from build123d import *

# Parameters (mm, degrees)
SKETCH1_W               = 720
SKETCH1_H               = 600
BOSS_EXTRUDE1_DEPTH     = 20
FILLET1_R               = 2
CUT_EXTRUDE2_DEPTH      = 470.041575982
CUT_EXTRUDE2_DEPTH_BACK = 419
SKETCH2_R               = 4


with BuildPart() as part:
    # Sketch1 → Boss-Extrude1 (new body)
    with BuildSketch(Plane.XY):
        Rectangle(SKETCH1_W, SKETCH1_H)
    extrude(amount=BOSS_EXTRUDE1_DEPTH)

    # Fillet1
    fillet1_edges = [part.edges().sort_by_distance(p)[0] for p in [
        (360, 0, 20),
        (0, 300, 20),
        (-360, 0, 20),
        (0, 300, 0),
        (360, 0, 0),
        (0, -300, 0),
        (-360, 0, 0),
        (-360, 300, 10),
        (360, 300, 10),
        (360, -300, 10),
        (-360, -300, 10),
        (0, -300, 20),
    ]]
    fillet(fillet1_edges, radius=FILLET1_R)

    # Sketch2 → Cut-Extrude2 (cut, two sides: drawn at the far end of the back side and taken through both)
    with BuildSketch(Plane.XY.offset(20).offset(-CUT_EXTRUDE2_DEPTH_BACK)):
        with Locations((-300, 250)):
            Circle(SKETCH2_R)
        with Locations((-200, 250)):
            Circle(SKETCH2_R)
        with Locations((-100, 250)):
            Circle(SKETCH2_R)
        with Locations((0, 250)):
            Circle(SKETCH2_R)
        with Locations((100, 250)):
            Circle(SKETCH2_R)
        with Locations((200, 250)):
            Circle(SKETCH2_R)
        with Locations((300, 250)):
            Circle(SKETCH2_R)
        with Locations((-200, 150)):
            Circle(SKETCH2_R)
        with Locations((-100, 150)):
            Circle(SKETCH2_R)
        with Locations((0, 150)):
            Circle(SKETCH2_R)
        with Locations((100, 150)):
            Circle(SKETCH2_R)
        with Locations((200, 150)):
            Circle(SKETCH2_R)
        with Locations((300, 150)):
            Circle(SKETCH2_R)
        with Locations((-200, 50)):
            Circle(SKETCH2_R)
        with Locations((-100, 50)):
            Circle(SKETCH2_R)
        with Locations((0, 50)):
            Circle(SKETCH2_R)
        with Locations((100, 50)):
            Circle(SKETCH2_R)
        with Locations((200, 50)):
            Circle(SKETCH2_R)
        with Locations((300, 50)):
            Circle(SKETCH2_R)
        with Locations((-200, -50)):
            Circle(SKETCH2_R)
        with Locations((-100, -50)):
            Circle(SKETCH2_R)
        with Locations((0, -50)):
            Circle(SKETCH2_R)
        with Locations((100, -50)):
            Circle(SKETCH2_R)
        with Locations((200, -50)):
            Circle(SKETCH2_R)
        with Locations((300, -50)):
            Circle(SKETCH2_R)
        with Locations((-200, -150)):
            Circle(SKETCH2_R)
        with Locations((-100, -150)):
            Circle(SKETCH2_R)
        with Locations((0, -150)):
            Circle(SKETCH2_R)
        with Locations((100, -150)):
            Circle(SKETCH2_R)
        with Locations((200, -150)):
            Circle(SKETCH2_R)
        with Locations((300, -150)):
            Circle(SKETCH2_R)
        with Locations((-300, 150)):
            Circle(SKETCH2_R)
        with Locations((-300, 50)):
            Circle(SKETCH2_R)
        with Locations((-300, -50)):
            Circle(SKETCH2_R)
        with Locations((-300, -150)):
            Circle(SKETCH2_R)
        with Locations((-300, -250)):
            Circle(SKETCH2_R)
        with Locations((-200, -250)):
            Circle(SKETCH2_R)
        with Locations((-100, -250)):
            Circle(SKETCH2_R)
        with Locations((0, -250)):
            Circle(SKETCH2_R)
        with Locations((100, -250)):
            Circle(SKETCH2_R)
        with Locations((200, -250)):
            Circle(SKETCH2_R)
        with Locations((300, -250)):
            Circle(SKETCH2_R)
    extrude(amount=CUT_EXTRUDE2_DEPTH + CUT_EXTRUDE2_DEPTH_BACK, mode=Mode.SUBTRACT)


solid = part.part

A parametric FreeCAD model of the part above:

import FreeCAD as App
import Part
import Sketcher
Q = App.Units.Quantity


def add_polygon(sketch, points):
    """Adds a closed chain of lines whose ends are joined by coincident constraints."""
    first, n = sketch.GeometryCount, len(points)
    for a, b in zip(points, points[1:] + points[:1]):
        sketch.addGeometry(Part.LineSegment(App.Vector(*a, 0), App.Vector(*b, 0)), False)
    for i in range(n):
        sketch.addConstraint(Sketcher.Constraint("Coincident", first + i, 2, first + (i + 1) % n, 1))

doc = App.newDocument("Part")
body = doc.addObject("PartDesign::Body", "Body")

# Sketch on XY plane
sketch1 = body.newObject("Sketcher::SketchObject", "Sketch")
sketch1.AttachmentSupport = (doc.getObject("XY_Plane"), [""])
sketch1.MapMode = "FlatFace"
add_polygon(sketch1, [(-360, 300), (-360, -300), (360, -300), (360, 300)])  # lines 0-3
sketch1.addConstraint([
    Sketcher.Constraint("Vertical", 0),
    Sketcher.Constraint("Horizontal", 1),
    Sketcher.Constraint("Vertical", 2),
    Sketcher.Constraint("Horizontal", 3),
    Sketcher.Constraint("Symmetric", 0, 2, 2, 2, -1, 1),
    Sketcher.Constraint("DistanceX", 1, 1, 1, 2, Q("720 mm")),
    Sketcher.Constraint("DistanceY", 0, 2, 0, 1, Q("600 mm")),
])
pad1 = body.newObject("PartDesign::Pad", "Pad")
pad1.Profile = sketch1
pad1.Length = 20
doc.recompute()

fillet = body.newObject("PartDesign::Fillet", "Fillet")
fillet.Base = (pad1, ["Edge1"])
fillet.UseAllEdges = True
fillet.Radius = 2

# Sketch on XY plane
sketch2 = body.newObject("Sketcher::SketchObject", "Sketch001")
sketch2.AttachmentSupport = (doc.getObject("XY_Plane"), [""])
sketch2.MapMode = "FlatFace"
sketch2.AttachmentOffset = App.Placement(App.Vector(0, 0, 20), App.Rotation())
sketch2.addGeometry([
    Part.Circle(App.Vector(-300, 250, 0), App.Vector(0, 0, 1), 4),  # 0
    Part.Circle(App.Vector(-200, 250, 0), App.Vector(0, 0, 1), 4),  # 1
    Part.Circle(App.Vector(-100, 250, 0), App.Vector(0, 0, 1), 4),  # 2
    Part.Circle(App.Vector(0, 250, 0), App.Vector(0, 0, 1), 4),  # 3
    Part.Circle(App.Vector(100, 250, 0), App.Vector(0, 0, 1), 4),  # 4
    Part.Circle(App.Vector(200, 250, 0), App.Vector(0, 0, 1), 4),  # 5
    Part.Circle(App.Vector(300, 250, 0), App.Vector(0, 0, 1), 4),  # 6
    Part.Circle(App.Vector(-200, 150, 0), App.Vector(0, 0, 1), 4),  # 7
    Part.Circle(App.Vector(-100, 150, 0), App.Vector(0, 0, 1), 4),  # 8
    Part.Circle(App.Vector(0, 150, 0), App.Vector(0, 0, 1), 4),  # 9
    Part.Circle(App.Vector(100, 150, 0), App.Vector(0, 0, 1), 4),  # 10
    Part.Circle(App.Vector(200, 150, 0), App.Vector(0, 0, 1), 4),  # 11
    Part.Circle(App.Vector(300, 150, 0), App.Vector(0, 0, 1), 4),  # 12
    Part.Circle(App.Vector(-200, 50, 0), App.Vector(0, 0, 1), 4),  # 13
    Part.Circle(App.Vector(-100, 50, 0), App.Vector(0, 0, 1), 4),  # 14
    Part.Circle(App.Vector(0, 50, 0), App.Vector(0, 0, 1), 4),  # 15
    Part.Circle(App.Vector(100, 50, 0), App.Vector(0, 0, 1), 4),  # 16
    Part.Circle(App.Vector(200, 50, 0), App.Vector(0, 0, 1), 4),  # 17
    Part.Circle(App.Vector(300, 50, 0), App.Vector(0, 0, 1), 4),  # 18
    Part.Circle(App.Vector(-200, -50, 0), App.Vector(0, 0, 1), 4),  # 19
    Part.Circle(App.Vector(-100, -50, 0), App.Vector(0, 0, 1), 4),  # 20
    Part.Circle(App.Vector(0, -50, 0), App.Vector(0, 0, 1), 4),  # 21
    Part.Circle(App.Vector(100, -50, 0), App.Vector(0, 0, 1), 4),  # 22
    Part.Circle(App.Vector(200, -50, 0), App.Vector(0, 0, 1), 4),  # 23
    Part.Circle(App.Vector(300, -50, 0), App.Vector(0, 0, 1), 4),  # 24
    Part.Circle(App.Vector(-200, -150, 0), App.Vector(0, 0, 1), 4),  # 25
    Part.Circle(App.Vector(-100, -150, 0), App.Vector(0, 0, 1), 4),  # 26
    Part.Circle(App.Vector(0, -150, 0), App.Vector(0, 0, 1), 4),  # 27
    Part.Circle(App.Vector(100, -150, 0), App.Vector(0, 0, 1), 4),  # 28
    Part.Circle(App.Vector(200, -150, 0), App.Vector(0, 0, 1), 4),  # 29
    Part.Circle(App.Vector(300, -150, 0), App.Vector(0, 0, 1), 4),  # 30
    Part.Circle(App.Vector(-300, 150, 0), App.Vector(0, 0, 1), 4),  # 31
    Part.Circle(App.Vector(-300, 50, 0), App.Vector(0, 0, 1), 4),  # 32
    Part.Circle(App.Vector(-300, -50, 0), App.Vector(0, 0, 1), 4),  # 33
    Part.Circle(App.Vector(-300, -150, 0), App.Vector(0, 0, 1), 4),  # 34
    Part.Circle(App.Vector(-300, -250, 0), App.Vector(0, 0, 1), 4),  # 35
    Part.Circle(App.Vector(-200, -250, 0), App.Vector(0, 0, 1), 4),  # 36
    Part.Circle(App.Vector(-100, -250, 0), App.Vector(0, 0, 1), 4),  # 37
    Part.Circle(App.Vector(0, -250, 0), App.Vector(0, 0, 1), 4),  # 38
    Part.Circle(App.Vector(100, -250, 0), App.Vector(0, 0, 1), 4),  # 39
    Part.Circle(App.Vector(200, -250, 0), App.Vector(0, 0, 1), 4),  # 40
    Part.Circle(App.Vector(300, -250, 0), App.Vector(0, 0, 1), 4),  # 41
], False)
sketch2.addConstraint([
    Sketcher.Constraint("Equal", 0, 1),
    Sketcher.Constraint("Equal", 1, 2),
    Sketcher.Constraint("Equal", 2, 3),
    Sketcher.Constraint("Equal", 3, 4),
    Sketcher.Constraint("Equal", 4, 5),
    Sketcher.Constraint("Equal", 5, 6),
    Sketcher.Constraint("Equal", 6, 7),
    Sketcher.Constraint("Equal", 7, 8),
    Sketcher.Constraint("Equal", 8, 9),
    Sketcher.Constraint("Equal", 9, 10),
    Sketcher.Constraint("Equal", 10, 11),
    Sketcher.Constraint("Equal", 11, 12),
    Sketcher.Constraint("Equal", 12, 13),
    Sketcher.Constraint("Equal", 13, 14),
    Sketcher.Constraint("Equal", 14, 15),
    Sketcher.Constraint("Equal", 15, 16),
    Sketcher.Constraint("Equal", 16, 17),
    Sketcher.Constraint("Equal", 17, 18),
    Sketcher.Constraint("Equal", 18, 19),
    Sketcher.Constraint("Equal", 19, 20),
    Sketcher.Constraint("Equal", 20, 21),
    Sketcher.Constraint("Equal", 21, 22),
    Sketcher.Constraint("Equal", 22, 23),
    Sketcher.Constraint("Equal", 23, 24),
    Sketcher.Constraint("Equal", 24, 25),
    Sketcher.Constraint("Equal", 25, 26),
    Sketcher.Constraint("Equal", 26, 27),
    Sketcher.Constraint("Equal", 27, 28),
    Sketcher.Constraint("Equal", 28, 29),
    Sketcher.Constraint("Equal", 29, 30),
    Sketcher.Constraint("Equal", 30, 31),
    Sketcher.Constraint("Equal", 31, 32),
    Sketcher.Constraint("Equal", 32, 33),
    Sketcher.Constraint("Equal", 33, 34),
    Sketcher.Constraint("Equal", 34, 35),
    Sketcher.Constraint("Equal", 35, 36),
    Sketcher.Constraint("Equal", 36, 37),
    Sketcher.Constraint("Equal", 37, 38),
    Sketcher.Constraint("Equal", 38, 39),
    Sketcher.Constraint("Equal", 39, 40),
    Sketcher.Constraint("Equal", 40, 41),
    Sketcher.Constraint("Symmetric", 17, 3, 19, 3, -1, 1),
    Sketcher.Constraint("Symmetric", 16, 3, 20, 3, -1, 1),
    Sketcher.Constraint("Symmetric", 15, 3, 21, 3, -1, 1),
    Sketcher.Constraint("Symmetric", 14, 3, 22, 3, -1, 1),
    Sketcher.Constraint("Symmetric", 13, 3, 23, 3, -1, 1),
    Sketcher.Constraint("Symmetric", 11, 3, 25, 3, -1, 1),
    Sketcher.Constraint("Symmetric", 10, 3, 26, 3, -1, 1),
    Sketcher.Constraint("Symmetric", 9, 3, 27, 3, -1, 1),
    Sketcher.Constraint("Symmetric", 8, 3, 28, 3, -1, 1),
    Sketcher.Constraint("Symmetric", 7, 3, 29, 3, -1, 1),
    Sketcher.Constraint("Symmetric", 30, 3, 31, 3, -1, 1),
    Sketcher.Constraint("Symmetric", 24, 3, 32, 3, -1, 1),
    Sketcher.Constraint("Symmetric", 18, 3, 33, 3, -1, 1),
    Sketcher.Constraint("Symmetric", 12, 3, 34, 3, -1, 1),
    Sketcher.Constraint("Symmetric", 6, 3, 35, 3, -1, 1),
    Sketcher.Constraint("Symmetric", 5, 3, 36, 3, -1, 1),
    Sketcher.Constraint("Symmetric", 4, 3, 37, 3, -1, 1),
    Sketcher.Constraint("Symmetric", 3, 3, 38, 3, -1, 1),
    Sketcher.Constraint("Symmetric", 2, 3, 39, 3, -1, 1),
    Sketcher.Constraint("Symmetric", 1, 3, 40, 3, -1, 1),
    Sketcher.Constraint("Symmetric", 0, 3, 41, 3, -1, 1),
    Sketcher.Constraint("Symmetric", 2, 3, 4, 3, -2),
    Sketcher.Constraint("Symmetric", 1, 3, 5, 3, -2),
    Sketcher.Constraint("Symmetric", 0, 3, 6, 3, -2),
    Sketcher.Constraint("Symmetric", 8, 3, 10, 3, -2),
    Sketcher.Constraint("Symmetric", 7, 3, 11, 3, -2),
    Sketcher.Constraint("Symmetric", 14, 3, 16, 3, -2),
    Sketcher.Constraint("Symmetric", 13, 3, 17, 3, -2),
    Sketcher.Constraint("Symmetric", 12, 3, 31, 3, -2),
    Sketcher.Constraint("Symmetric", 18, 3, 32, 3, -2),
    Sketcher.Constraint("PointOnObject", 3, 3, -2),
    Sketcher.Constraint("PointOnObject", 9, 3, -2),
    Sketcher.Constraint("PointOnObject", 15, 3, -2),
    Sketcher.Constraint("Horizontal", 0, 3, 1, 3),
    Sketcher.Constraint("Horizontal", 1, 3, 2, 3),
    Sketcher.Constraint("Horizontal", 2, 3, 3, 3),
    Sketcher.Constraint("Horizontal", 7, 3, 8, 3),
    Sketcher.Constraint("Horizontal", 8, 3, 9, 3),
    Sketcher.Constraint("Horizontal", 11, 3, 12, 3),
    Sketcher.Constraint("Horizontal", 13, 3, 14, 3),
    Sketcher.Constraint("Horizontal", 14, 3, 15, 3),
    Sketcher.Constraint("Horizontal", 17, 3, 18, 3),
    Sketcher.Constraint("Vertical", 1, 3, 7, 3),
    Sketcher.Constraint("Vertical", 2, 3, 8, 3),
    Sketcher.Constraint("Vertical", 6, 3, 12, 3),
    Sketcher.Constraint("Vertical", 7, 3, 13, 3),
    Sketcher.Constraint("Vertical", 8, 3, 14, 3),
    Sketcher.Constraint("Vertical", 12, 3, 18, 3),
    Sketcher.Constraint("Diameter", 0, Q("8 mm")),
    Sketcher.Constraint("DistanceX", 0, 3, -1, 1, Q("300 mm")),
    Sketcher.Constraint("DistanceY", -1, 1, 0, 3, Q("250 mm")),
    Sketcher.Constraint("DistanceX", 1, 3, -1, 1, Q("200 mm")),
    Sketcher.Constraint("DistanceX", 2, 3, -1, 1, Q("100 mm")),
    Sketcher.Constraint("DistanceY", -1, 1, 7, 3, Q("150 mm")),
    Sketcher.Constraint("DistanceY", -1, 1, 13, 3, Q("50 mm")),
])
pocket1 = body.newObject("PartDesign::Pocket", "Pocket")
pocket1.Profile = sketch2
pocket1.Type = "ThroughAll"
pocket1.Midplane = True

doc.recompute()
